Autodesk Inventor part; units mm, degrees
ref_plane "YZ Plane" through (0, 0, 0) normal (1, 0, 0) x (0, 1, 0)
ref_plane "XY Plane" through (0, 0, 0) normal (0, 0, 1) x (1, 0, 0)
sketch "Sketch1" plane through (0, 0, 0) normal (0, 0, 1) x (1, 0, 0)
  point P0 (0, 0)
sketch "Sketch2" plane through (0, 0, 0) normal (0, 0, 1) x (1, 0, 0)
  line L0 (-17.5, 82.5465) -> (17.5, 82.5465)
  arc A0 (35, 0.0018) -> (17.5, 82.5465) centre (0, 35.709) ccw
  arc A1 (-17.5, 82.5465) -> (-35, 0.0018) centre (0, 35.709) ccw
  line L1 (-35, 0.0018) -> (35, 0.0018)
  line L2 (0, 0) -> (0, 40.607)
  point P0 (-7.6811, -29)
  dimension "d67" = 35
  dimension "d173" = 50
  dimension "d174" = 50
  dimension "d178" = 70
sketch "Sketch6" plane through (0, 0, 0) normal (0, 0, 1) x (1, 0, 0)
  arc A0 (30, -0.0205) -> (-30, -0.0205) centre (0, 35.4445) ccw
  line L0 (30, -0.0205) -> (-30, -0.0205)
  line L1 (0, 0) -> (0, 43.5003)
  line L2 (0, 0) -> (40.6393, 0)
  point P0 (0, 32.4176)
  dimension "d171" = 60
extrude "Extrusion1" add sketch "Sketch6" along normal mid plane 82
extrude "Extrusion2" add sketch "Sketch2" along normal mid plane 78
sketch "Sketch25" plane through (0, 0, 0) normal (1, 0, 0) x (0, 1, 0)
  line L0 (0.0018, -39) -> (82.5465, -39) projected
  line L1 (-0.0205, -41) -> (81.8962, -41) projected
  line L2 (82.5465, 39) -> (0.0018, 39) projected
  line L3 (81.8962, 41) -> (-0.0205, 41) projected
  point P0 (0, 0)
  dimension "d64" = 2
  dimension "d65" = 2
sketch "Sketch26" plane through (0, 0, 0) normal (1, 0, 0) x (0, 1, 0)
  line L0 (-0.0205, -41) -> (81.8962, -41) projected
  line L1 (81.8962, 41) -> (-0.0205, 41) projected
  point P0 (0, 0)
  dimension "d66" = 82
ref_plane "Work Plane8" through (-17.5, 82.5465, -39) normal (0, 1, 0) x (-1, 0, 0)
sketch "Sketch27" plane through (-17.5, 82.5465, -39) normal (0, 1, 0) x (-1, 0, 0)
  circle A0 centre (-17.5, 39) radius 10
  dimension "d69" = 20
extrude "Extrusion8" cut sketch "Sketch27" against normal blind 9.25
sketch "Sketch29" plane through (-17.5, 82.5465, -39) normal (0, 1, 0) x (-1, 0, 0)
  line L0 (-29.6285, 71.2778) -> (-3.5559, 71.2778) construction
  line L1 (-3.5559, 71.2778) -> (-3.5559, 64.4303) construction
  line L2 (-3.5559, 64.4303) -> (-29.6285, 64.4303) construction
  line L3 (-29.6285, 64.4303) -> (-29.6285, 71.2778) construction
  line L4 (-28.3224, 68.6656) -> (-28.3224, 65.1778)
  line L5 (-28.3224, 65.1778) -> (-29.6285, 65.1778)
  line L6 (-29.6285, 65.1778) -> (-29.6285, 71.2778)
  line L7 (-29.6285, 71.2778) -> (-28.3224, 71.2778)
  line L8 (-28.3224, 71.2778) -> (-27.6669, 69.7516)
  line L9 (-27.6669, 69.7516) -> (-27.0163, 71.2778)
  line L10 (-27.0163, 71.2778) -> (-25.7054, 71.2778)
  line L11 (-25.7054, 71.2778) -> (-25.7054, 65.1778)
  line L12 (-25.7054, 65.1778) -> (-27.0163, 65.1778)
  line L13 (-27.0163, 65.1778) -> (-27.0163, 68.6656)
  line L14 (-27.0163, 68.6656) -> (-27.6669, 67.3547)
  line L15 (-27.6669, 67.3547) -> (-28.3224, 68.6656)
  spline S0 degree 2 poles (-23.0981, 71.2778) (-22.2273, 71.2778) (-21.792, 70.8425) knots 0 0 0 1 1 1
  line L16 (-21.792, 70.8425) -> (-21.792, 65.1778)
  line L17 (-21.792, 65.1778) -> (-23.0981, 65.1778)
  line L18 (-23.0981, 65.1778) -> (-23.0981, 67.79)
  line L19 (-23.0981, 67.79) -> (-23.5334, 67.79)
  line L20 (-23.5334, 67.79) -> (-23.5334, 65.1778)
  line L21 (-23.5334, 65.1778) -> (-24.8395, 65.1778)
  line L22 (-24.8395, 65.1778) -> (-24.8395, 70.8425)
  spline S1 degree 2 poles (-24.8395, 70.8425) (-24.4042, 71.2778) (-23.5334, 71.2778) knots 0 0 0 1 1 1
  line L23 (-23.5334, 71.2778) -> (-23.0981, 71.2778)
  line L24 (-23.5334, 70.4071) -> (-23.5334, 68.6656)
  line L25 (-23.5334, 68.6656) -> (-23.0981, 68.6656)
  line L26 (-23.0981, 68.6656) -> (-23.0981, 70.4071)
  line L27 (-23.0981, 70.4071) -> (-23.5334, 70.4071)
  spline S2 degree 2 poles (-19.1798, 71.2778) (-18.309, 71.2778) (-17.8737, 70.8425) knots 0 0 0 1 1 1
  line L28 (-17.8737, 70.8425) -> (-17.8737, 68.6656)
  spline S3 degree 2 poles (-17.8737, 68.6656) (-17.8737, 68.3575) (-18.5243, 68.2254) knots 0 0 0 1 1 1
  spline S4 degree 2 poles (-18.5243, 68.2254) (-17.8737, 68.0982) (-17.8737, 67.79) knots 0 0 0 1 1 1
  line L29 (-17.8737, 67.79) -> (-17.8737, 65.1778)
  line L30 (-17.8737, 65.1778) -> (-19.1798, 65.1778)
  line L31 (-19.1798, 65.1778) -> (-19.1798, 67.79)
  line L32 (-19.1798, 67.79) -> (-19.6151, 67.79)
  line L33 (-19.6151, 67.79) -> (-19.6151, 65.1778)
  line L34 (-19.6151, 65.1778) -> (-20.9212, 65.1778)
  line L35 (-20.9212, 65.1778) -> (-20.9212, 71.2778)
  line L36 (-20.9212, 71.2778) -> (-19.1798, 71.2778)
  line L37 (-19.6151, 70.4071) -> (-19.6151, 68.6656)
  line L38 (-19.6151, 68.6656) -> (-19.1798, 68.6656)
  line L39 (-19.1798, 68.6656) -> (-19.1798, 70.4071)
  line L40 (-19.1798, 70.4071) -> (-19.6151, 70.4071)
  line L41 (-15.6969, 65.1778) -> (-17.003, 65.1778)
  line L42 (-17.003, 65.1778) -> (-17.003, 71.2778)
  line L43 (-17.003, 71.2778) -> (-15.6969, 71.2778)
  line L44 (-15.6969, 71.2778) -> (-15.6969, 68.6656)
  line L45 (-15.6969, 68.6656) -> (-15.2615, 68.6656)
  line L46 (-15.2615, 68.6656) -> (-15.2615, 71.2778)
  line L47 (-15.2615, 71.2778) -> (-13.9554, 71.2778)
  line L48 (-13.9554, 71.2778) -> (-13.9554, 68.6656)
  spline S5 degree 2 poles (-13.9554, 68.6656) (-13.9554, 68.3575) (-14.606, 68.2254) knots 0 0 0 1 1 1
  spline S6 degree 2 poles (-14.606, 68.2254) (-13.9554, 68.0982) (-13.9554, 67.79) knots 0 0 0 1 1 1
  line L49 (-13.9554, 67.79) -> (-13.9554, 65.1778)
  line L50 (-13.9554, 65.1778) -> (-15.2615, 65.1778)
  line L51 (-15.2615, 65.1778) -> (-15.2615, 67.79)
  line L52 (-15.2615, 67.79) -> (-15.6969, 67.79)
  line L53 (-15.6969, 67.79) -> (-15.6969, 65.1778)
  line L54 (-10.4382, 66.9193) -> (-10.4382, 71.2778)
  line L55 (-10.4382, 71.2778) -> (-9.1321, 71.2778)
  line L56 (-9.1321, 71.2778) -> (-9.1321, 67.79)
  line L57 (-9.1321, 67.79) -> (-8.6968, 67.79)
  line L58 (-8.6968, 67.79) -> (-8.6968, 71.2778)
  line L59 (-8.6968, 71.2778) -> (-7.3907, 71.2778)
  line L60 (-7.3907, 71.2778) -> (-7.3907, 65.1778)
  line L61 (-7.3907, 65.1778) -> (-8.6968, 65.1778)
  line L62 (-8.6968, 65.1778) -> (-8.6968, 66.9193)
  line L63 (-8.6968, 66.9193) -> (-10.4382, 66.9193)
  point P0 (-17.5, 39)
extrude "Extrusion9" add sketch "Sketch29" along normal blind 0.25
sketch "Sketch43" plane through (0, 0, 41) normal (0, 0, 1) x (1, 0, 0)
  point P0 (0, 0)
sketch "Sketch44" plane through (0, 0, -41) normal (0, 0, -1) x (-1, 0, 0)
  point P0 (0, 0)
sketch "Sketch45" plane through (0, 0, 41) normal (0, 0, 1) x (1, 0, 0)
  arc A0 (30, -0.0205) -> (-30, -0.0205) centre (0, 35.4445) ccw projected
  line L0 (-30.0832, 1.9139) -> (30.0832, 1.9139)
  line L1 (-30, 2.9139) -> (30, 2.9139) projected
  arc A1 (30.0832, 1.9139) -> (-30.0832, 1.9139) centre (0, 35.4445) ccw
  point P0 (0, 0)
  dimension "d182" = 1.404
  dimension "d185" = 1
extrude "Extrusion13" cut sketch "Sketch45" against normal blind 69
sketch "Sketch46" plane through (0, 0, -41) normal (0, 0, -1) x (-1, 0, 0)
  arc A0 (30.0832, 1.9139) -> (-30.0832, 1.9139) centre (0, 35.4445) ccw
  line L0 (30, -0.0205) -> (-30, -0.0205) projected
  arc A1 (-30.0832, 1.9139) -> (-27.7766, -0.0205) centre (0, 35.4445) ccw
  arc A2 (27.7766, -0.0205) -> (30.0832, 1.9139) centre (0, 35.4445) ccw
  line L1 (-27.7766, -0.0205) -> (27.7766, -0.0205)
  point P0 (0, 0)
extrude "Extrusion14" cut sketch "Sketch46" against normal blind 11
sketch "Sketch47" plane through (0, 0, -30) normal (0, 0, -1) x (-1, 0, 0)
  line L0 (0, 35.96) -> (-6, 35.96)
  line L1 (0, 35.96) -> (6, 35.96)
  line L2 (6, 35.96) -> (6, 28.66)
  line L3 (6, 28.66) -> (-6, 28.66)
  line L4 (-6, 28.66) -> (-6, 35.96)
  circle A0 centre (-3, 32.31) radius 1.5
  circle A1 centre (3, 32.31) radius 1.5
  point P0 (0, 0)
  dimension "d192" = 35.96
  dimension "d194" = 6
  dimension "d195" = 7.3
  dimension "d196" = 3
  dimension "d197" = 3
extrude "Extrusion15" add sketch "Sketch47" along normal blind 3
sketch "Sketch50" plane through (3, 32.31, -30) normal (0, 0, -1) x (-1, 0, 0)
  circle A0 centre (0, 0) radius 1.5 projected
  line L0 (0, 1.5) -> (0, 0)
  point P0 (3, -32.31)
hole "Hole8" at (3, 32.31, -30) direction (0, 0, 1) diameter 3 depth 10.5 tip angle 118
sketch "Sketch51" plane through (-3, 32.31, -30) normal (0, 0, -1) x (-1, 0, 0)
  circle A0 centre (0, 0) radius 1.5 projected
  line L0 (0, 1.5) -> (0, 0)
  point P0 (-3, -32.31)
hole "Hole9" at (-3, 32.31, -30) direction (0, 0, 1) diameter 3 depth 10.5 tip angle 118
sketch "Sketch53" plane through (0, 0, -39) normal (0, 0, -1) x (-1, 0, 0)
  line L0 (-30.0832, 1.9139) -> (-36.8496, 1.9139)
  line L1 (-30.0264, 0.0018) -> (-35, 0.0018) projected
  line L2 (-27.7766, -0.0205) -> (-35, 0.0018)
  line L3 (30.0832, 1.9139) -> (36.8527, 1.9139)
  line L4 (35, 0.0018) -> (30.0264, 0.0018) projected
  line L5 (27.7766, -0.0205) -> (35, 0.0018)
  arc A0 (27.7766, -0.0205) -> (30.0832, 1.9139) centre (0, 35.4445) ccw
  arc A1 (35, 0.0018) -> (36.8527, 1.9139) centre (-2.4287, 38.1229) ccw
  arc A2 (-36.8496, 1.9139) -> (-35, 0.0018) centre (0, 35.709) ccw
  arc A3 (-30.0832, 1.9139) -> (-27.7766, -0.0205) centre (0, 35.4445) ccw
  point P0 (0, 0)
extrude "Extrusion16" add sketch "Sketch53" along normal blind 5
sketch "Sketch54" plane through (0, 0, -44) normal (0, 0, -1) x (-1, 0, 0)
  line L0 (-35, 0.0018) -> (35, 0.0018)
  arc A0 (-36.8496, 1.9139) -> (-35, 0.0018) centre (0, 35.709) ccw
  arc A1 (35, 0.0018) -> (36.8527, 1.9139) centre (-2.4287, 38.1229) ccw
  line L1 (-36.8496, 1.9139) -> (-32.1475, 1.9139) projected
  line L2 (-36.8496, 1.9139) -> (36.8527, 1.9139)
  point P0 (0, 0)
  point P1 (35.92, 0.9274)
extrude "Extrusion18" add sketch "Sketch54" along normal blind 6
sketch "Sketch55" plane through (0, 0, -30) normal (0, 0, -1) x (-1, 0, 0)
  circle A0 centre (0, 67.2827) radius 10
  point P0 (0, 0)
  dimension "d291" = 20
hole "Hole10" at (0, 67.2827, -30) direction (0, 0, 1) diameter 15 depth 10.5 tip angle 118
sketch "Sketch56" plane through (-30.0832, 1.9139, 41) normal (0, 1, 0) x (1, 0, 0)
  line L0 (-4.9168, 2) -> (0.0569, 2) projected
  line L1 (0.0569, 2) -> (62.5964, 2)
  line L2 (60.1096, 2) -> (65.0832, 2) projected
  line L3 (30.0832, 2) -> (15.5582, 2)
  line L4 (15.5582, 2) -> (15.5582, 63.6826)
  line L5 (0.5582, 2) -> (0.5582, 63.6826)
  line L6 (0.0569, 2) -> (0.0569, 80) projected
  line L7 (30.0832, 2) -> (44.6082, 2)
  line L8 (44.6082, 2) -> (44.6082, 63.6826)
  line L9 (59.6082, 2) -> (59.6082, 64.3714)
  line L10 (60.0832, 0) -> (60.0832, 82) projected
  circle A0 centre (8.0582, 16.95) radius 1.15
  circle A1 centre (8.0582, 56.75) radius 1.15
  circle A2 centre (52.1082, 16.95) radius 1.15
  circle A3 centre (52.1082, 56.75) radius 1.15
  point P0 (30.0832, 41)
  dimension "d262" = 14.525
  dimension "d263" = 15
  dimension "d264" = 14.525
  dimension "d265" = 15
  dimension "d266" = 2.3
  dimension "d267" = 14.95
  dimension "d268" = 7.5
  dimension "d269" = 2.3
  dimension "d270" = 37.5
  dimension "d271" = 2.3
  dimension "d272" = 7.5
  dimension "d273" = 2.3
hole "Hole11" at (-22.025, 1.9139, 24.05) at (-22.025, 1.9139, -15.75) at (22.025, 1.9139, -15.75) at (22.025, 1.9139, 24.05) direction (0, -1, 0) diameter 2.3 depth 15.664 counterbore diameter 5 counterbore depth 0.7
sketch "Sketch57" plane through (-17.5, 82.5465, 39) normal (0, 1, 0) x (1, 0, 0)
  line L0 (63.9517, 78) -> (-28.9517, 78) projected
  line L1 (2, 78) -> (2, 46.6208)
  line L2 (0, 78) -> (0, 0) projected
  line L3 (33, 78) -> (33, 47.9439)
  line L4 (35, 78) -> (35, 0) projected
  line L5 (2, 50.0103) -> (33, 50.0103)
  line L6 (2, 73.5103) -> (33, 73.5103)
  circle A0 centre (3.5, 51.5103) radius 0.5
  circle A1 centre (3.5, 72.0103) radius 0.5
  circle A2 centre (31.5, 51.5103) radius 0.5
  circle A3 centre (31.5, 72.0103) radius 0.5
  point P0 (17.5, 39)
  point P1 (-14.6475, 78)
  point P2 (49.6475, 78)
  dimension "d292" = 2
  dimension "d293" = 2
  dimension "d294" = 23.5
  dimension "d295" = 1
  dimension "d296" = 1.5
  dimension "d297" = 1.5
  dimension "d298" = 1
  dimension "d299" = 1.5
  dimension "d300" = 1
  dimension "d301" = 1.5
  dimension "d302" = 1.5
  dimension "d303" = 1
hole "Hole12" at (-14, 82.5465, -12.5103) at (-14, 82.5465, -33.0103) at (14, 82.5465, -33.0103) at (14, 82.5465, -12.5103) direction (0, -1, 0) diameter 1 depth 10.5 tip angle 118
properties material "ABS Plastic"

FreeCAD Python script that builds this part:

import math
import FreeCAD as App
import Part
import Sketcher

V = App.Vector
Q = App.Units.Quantity


def add_polygon(sketch, points):
    """Adds a closed chain of lines whose ends are joined by coincident constraints."""
    first, n = sketch.GeometryCount, len(points)
    for a, b in zip(points, points[1:] + points[:1]):
        sketch.addGeometry(Part.LineSegment(App.Vector(*a, 0), App.Vector(*b, 0)), False)
    for i in range(n):
        sketch.addConstraint(Sketcher.Constraint("Coincident", first + i, 2, first + (i + 1) % n, 1))

doc = App.newDocument("Part")
body = doc.addObject("PartDesign::Body", "Body")

sketch1 = doc.addObject("Sketcher::SketchObject", "Sketch")
body.addObject(sketch1)
sketch1.AttachmentSupport = (doc.XY_Plane, [""])
sketch1.MapMode = "FlatFace"
sketch1.addGeometry(Part.LineSegment(V(-30, -0.0205, 0), V(30, -0.0205, 0)), False)
sketch1.addGeometry(Part.ArcOfCircle(Part.Circle(V(0, 35.4445, 0), V(0, 0, 1), 46.451762), math.radians(-49.771971), math.radians(229.771971)), False)
sketch1.addConstraint(Sketcher.Constraint("Coincident", 0, 1, 1, 2))
sketch1.addConstraint(Sketcher.Constraint("Coincident", 1, 1, 0, 2))
sketch1.addConstraint(Sketcher.Constraint("Horizontal", 0))
sketch1.addConstraint(Sketcher.Constraint("PointOnObject", 1, 3, -2))
sketch1.addConstraint(Sketcher.Constraint("DistanceX", 0, 1, 0, 2, Q("60 mm")))
sketch1.addConstraint(Sketcher.Constraint("Radius", 1, Q("46.4518 mm")))
sketch1.addConstraint(Sketcher.Constraint("DistanceY", -1, 1, 1, 3, Q("35.4445 mm")))
pad1 = doc.addObject("PartDesign::Pad", "Pad")
body.addObject(pad1)
pad1.Profile = sketch1
pad1.Length = 82
pad1.Midplane = True

sketch2 = doc.addObject("Sketcher::SketchObject", "Sketch001")
body.addObject(sketch2)
sketch2.AttachmentSupport = (doc.XY_Plane, [""])
sketch2.MapMode = "FlatFace"
sketch2.addGeometry(Part.LineSegment(V(17.5, 82.5465, 0), V(-17.5, 82.5465, 0)), False)
sketch2.addGeometry(Part.ArcOfCircle(Part.Circle(V(0, 35.709, 0), V(0, 0, 1), 50.000041), math.radians(110.487309), math.radians(225.573042)), False)
sketch2.addGeometry(Part.LineSegment(V(-35, 0.0018, 0), V(35, 0.0018, 0)), False)
sketch2.addGeometry(Part.ArcOfCircle(Part.Circle(V(0, 35.709, 0), V(0, 0, 1), 50.000014), math.radians(-45.573042), math.radians(69.512691)), False)
sketch2.addConstraint(Sketcher.Constraint("Coincident", 0, 2, 1, 1))
sketch2.addConstraint(Sketcher.Constraint("Coincident", 1, 2, 2, 1))
sketch2.addConstraint(Sketcher.Constraint("Coincident", 2, 2, 3, 1))
sketch2.addConstraint(Sketcher.Constraint("Coincident", 3, 2, 0, 1))
sketch2.addConstraint(Sketcher.Constraint("Horizontal", 0))
sketch2.addConstraint(Sketcher.Constraint("Horizontal", 2))
sketch2.addConstraint(Sketcher.Constraint("Coincident", 3, 3, 1, 3))
sketch2.addConstraint(Sketcher.Constraint("Equal", 1, 3))
sketch2.addConstraint(Sketcher.Constraint("PointOnObject", 1, 3, -2))
sketch2.addConstraint(Sketcher.Constraint("Radius", 1, Q("50 mm")))
sketch2.addConstraint(Sketcher.Constraint("DistanceX", 0, 2, 0, 1, Q("35 mm")))
sketch2.addConstraint(Sketcher.Constraint("DistanceX", 2, 1, 2, 2, Q("70 mm")))
sketch2.addConstraint(Sketcher.Constraint("DistanceY", -1, 1, 1, 3, Q("35.709 mm")))
pad2 = doc.addObject("PartDesign::Pad", "Pad001")
body.addObject(pad2)
pad2.Profile = sketch2
pad2.Length = 78
pad2.Midplane = True

sketch3 = doc.addObject("Sketcher::SketchObject", "Sketch002")
body.addObject(sketch3)
sketch3.AttachmentSupport = (doc.XZ_Plane, [""])
sketch3.MapMode = "FlatFace"
sketch3.AttachmentOffset = App.Placement(V(0, 0, -82.5465), App.Rotation())
sketch3.addGeometry(Part.Circle(V(0, 0, 0), V(0, 0, 1), 10), False)
sketch3.addConstraint(Sketcher.Constraint("Coincident", 0, 3, -1, 1))
sketch3.addConstraint(Sketcher.Constraint("Diameter", 0, Q("20 mm")))
pocket1 = doc.addObject("PartDesign::Pocket", "Pocket")
body.addObject(pocket1)
pocket1.Profile = sketch3
pocket1.Length = 9.25
pocket1.Reversed = True

sketch4 = doc.addObject("Sketcher::SketchObject", "Sketch003")
body.addObject(sketch4)
sketch4.AttachmentSupport = (doc.XZ_Plane, [""])
sketch4.MapMode = "FlatFace"
sketch4.AttachmentOffset = App.Placement(V(0, 0, -82.5465), App.Rotation())
add_polygon(sketch4, [(10.8224, 26.1778), (10.8224, 29.6656), (10.1669, 28.3547), (9.5163, 29.6656), (9.5163, 26.1778), (8.2054, 26.1778), (8.2054, 32.2778), (9.5163, 32.2778), (10.1669, 30.7516), (10.8224, 32.2778), (12.1285, 32.2778), (12.1285, 26.1778)])
sketch4.addGeometry(Part.BSplineCurve([V(5.5981, 32.2778, 0), V(4.7273, 32.2778, 0), V(4.292, 31.8425, 0)], [3, 3], [0, 1], False, 2, [1, 1, 1], False), False)
sketch4.addGeometry(Part.LineSegment(V(5.5981, 32.2778, 0), V(6.0334, 32.2778, 0)), False)
sketch4.addGeometry(Part.BSplineCurve([V(7.3395, 31.8425, 0), V(6.9042, 32.2778, 0), V(6.0334, 32.2778, 0)], [3, 3], [0, 1], False, 2, [1, 1, 1], False), False)
sketch4.addGeometry(Part.LineSegment(V(7.3395, 31.8425, 0), V(7.3395, 26.1778, 0)), False)
sketch4.addGeometry(Part.LineSegment(V(7.3395, 26.1778, 0), V(6.0334, 26.1778, 0)), False)
sketch4.addGeometry(Part.LineSegment(V(6.0334, 26.1778, 0), V(6.0334, 28.79, 0)), False)
sketch4.addGeometry(Part.LineSegment(V(6.0334, 28.79, 0), V(5.5981, 28.79, 0)), False)
sketch4.addGeometry(Part.LineSegment(V(5.5981, 28.79, 0), V(5.5981, 26.1778, 0)), False)
sketch4.addGeometry(Part.LineSegment(V(5.5981, 26.1778, 0), V(4.292, 26.1778, 0)), False)
sketch4.addGeometry(Part.LineSegment(V(4.292, 26.1778, 0), V(4.292, 31.8425, 0)), False)
add_polygon(sketch4, [(6.0334, 29.6656), (6.0334, 31.4071), (5.5981, 31.4071), (5.5981, 29.6656)])
sketch4.addGeometry(Part.BSplineCurve([V(1.6798, 32.2778, 0), V(0.809, 32.2778, 0), V(0.3737, 31.8425, 0)], [3, 3], [0, 1], False, 2, [1, 1, 1], False), False)
sketch4.addGeometry(Part.LineSegment(V(1.6798, 32.2778, 0), V(3.4212, 32.2778, 0)), False)
sketch4.addGeometry(Part.LineSegment(V(3.4212, 32.2778, 0), V(3.4212, 26.1778, 0)), False)
sketch4.addGeometry(Part.LineSegment(V(3.4212, 26.1778, 0), V(2.1151, 26.1778, 0)), False)
sketch4.addGeometry(Part.LineSegment(V(2.1151, 26.1778, 0), V(2.1151, 28.79, 0)), False)
sketch4.addGeometry(Part.LineSegment(V(2.1151, 28.79, 0), V(1.6798, 28.79, 0)), False)
sketch4.addGeometry(Part.LineSegment(V(1.6798, 28.79, 0), V(1.6798, 26.1778, 0)), False)
sketch4.addGeometry(Part.LineSegment(V(1.6798, 26.1778, 0), V(0.3737, 26.1778, 0)), False)
sketch4.addGeometry(Part.LineSegment(V(0.3737, 26.1778, 0), V(0.3737, 28.79, 0)), False)
sketch4.addGeometry(Part.BSplineCurve([V(1.0243, 29.2254, 0), V(0.3737, 29.0982, 0), V(0.3737, 28.79, 0)], [3, 3], [0, 1], False, 2, [1, 1, 1], False), False)
sketch4.addGeometry(Part.BSplineCurve([V(0.3737, 29.6656, 0), V(0.3737, 29.3575, 0), V(1.0243, 29.2254, 0)], [3, 3], [0, 1], False, 2, [1, 1, 1], False), False)
sketch4.addGeometry(Part.LineSegment(V(0.3737, 29.6656, 0), V(0.3737, 31.8425, 0)), False)
add_polygon(sketch4, [(2.1151, 29.6656), (2.1151, 31.4071), (1.6798, 31.4071), (1.6798, 29.6656)])
sketch4.addGeometry(Part.LineSegment(V(-0.497, 26.1778, 0), V(-1.8031, 26.1778, 0)), False)
sketch4.addGeometry(Part.LineSegment(V(-1.8031, 26.1778, 0), V(-1.8031, 28.79, 0)), False)
sketch4.addGeometry(Part.LineSegment(V(-1.8031, 28.79, 0), V(-2.2385, 28.79, 0)), False)
sketch4.addGeometry(Part.LineSegment(V(-2.2385, 28.79, 0), V(-2.2385, 26.1778, 0)), False)
sketch4.addGeometry(Part.LineSegment(V(-2.2385, 26.1778, 0), V(-3.5446, 26.1778, 0)), False)
sketch4.addGeometry(Part.LineSegment(V(-3.5446, 26.1778, 0), V(-3.5446, 28.79, 0)), False)
sketch4.addGeometry(Part.BSplineCurve([V(-2.894, 29.2254, 0), V(-3.5446, 29.0982, 0), V(-3.5446, 28.79, 0)], [3, 3], [0, 1], False, 2, [1, 1, 1], False), False)
sketch4.addGeometry(Part.BSplineCurve([V(-3.5446, 29.6656, 0), V(-3.5446, 29.3575, 0), V(-2.894, 29.2254, 0)], [3, 3], [0, 1], False, 2, [1, 1, 1], False), False)
sketch4.addGeometry(Part.LineSegment(V(-3.5446, 29.6656, 0), V(-3.5446, 32.2778, 0)), False)
sketch4.addGeometry(Part.LineSegment(V(-3.5446, 32.2778, 0), V(-2.2385, 32.2778, 0)), False)
sketch4.addGeometry(Part.LineSegment(V(-2.2385, 32.2778, 0), V(-2.2385, 29.6656, 0)), False)
sketch4.addGeometry(Part.LineSegment(V(-2.2385, 29.6656, 0), V(-1.8031, 29.6656, 0)), False)
sketch4.addGeometry(Part.LineSegment(V(-1.8031, 29.6656, 0), V(-1.8031, 32.2778, 0)), False)
sketch4.addGeometry(Part.LineSegment(V(-1.8031, 32.2778, 0), V(-0.497, 32.2778, 0)), False)
sketch4.addGeometry(Part.LineSegment(V(-0.497, 32.2778, 0), V(-0.497, 26.1778, 0)), False)
add_polygon(sketch4, [(-7.0618, 32.2778), (-7.0618, 27.9193), (-8.8032, 27.9193), (-8.8032, 26.1778), (-10.1093, 26.1778), (-10.1093, 32.2778), (-8.8032, 32.2778), (-8.8032, 28.79), (-8.3679, 28.79), (-8.3679, 32.2778)])
sketch4.addConstraint(Sketcher.Constraint("Block", 12))
sketch4.addConstraint(Sketcher.Constraint("Block", 14))
sketch4.addConstraint(Sketcher.Constraint("Block", 26))
sketch4.addConstraint(Sketcher.Constraint("Block", 35))
sketch4.addConstraint(Sketcher.Constraint("Block", 36))
sketch4.addConstraint(Sketcher.Constraint("Block", 48))
sketch4.addConstraint(Sketcher.Constraint("Block", 49))
sketch4.addConstraint(Sketcher.Constraint("Coincident", 12, 1, 13, 1))
sketch4.addConstraint(Sketcher.Constraint("Coincident", 13, 2, 14, 2))
sketch4.addConstraint(Sketcher.Constraint("Coincident", 14, 1, 15, 1))
sketch4.addConstraint(Sketcher.Constraint("Coincident", 15, 2, 16, 1))
sketch4.addConstraint(Sketcher.Constraint("Coincident", 16, 2, 17, 1))
sketch4.addConstraint(Sketcher.Constraint("Coincident", 17, 2, 18, 1))
sketch4.addConstraint(Sketcher.Constraint("Coincident", 18, 2, 19, 1))
sketch4.addConstraint(Sketcher.Constraint("Coincident", 19, 2, 20, 1))
sketch4.addConstraint(Sketcher.Constraint("Coincident", 20, 2, 21, 1))
sketch4.addConstraint(Sketcher.Constraint("Coincident", 21, 2, 12, 2))
sketch4.addConstraint(Sketcher.Constraint("Coincident", 26, 1, 27, 1))
sketch4.addConstraint(Sketcher.Constraint("Coincident", 27, 2, 28, 1))
sketch4.addConstraint(Sketcher.Constraint("Coincident", 28, 2, 29, 1))
sketch4.addConstraint(Sketcher.Constraint("Coincident", 29, 2, 30, 1))
sketch4.addConstraint(Sketcher.Constraint("Coincident", 30, 2, 31, 1))
sketch4.addConstraint(Sketcher.Constraint("Coincident", 31, 2, 32, 1))
sketch4.addConstraint(Sketcher.Constraint("Coincident", 32, 2, 33, 1))
sketch4.addConstraint(Sketcher.Constraint("Coincident", 33, 2, 34, 1))
sketch4.addConstraint(Sketcher.Constraint("Coincident", 34, 2, 35, 2))
sketch4.addConstraint(Sketcher.Constraint("Coincident", 36, 1, 37, 1))
sketch4.addConstraint(Sketcher.Constraint("Coincident", 37, 2, 26, 2))
sketch4.addConstraint(Sketcher.Constraint("Coincident", 42, 2, 43, 1))
sketch4.addConstraint(Sketcher.Constraint("Coincident", 43, 2, 44, 1))
sketch4.addConstraint(Sketcher.Constraint("Coincident", 44, 2, 45, 1))
sketch4.addConstraint(Sketcher.Constraint("Coincident", 45, 2, 46, 1))
sketch4.addConstraint(Sketcher.Constraint("Coincident", 46, 2, 47, 1))
sketch4.addConstraint(Sketcher.Constraint("Coincident", 47, 2, 48, 2))
sketch4.addConstraint(Sketcher.Constraint("Coincident", 49, 1, 50, 1))
sketch4.addConstraint(Sketcher.Constraint("Coincident", 50, 2, 51, 1))
sketch4.addConstraint(Sketcher.Constraint("Coincident", 51, 2, 52, 1))
sketch4.addConstraint(Sketcher.Constraint("Coincident", 52, 2, 53, 1))
sketch4.addConstraint(Sketcher.Constraint("Coincident", 53, 2, 54, 1))
sketch4.addConstraint(Sketcher.Constraint("Coincident", 54, 2, 55, 1))
sketch4.addConstraint(Sketcher.Constraint("Coincident", 55, 2, 56, 1))
sketch4.addConstraint(Sketcher.Constraint("Coincident", 56, 2, 42, 1))
sketch4.addConstraint(Sketcher.Constraint("Vertical", 0))
sketch4.addConstraint(Sketcher.Constraint("Vertical", 3))
sketch4.addConstraint(Sketcher.Constraint("Horizontal", 4))
sketch4.addConstraint(Sketcher.Constraint("Vertical", 5))
sketch4.addConstraint(Sketcher.Constraint("Horizontal", 6))
sketch4.addConstraint(Sketcher.Constraint("Horizontal", 9))
sketch4.addConstraint(Sketcher.Constraint("Vertical", 10))
sketch4.addConstraint(Sketcher.Constraint("Horizontal", 11))
sketch4.addConstraint(Sketcher.Constraint("Vertical", 15))
sketch4.addConstraint(Sketcher.Constraint("Horizontal", 16))
sketch4.addConstraint(Sketcher.Constraint("Vertical", 17))
sketch4.addConstraint(Sketcher.Constraint("Horizontal", 18))
sketch4.addConstraint(Sketcher.Constraint("Vertical", 19))
sketch4.addConstraint(Sketcher.Constraint("Horizontal", 20))
sketch4.addConstraint(Sketcher.Constraint("Vertical", 21))
sketch4.addConstraint(Sketcher.Constraint("Vertical", 22))
sketch4.addConstraint(Sketcher.Constraint("Horizontal", 23))
sketch4.addConstraint(Sketcher.Constraint("Vertical", 24))
sketch4.addConstraint(Sketcher.Constraint("Horizontal", 25))
sketch4.addConstraint(Sketcher.Constraint("Horizontal", 27))
sketch4.addConstraint(Sketcher.Constraint("Vertical", 28))
sketch4.addConstraint(Sketcher.Constraint("Horizontal", 29))
sketch4.addConstraint(Sketcher.Constraint("Vertical", 30))
sketch4.addConstraint(Sketcher.Constraint("Horizontal", 31))
sketch4.addConstraint(Sketcher.Constraint("Vertical", 32))
sketch4.addConstraint(Sketcher.Constraint("Horizontal", 33))
sketch4.addConstraint(Sketcher.Constraint("Vertical", 34))
sketch4.addConstraint(Sketcher.Constraint("Vertical", 38))
sketch4.addConstraint(Sketcher.Constraint("Horizontal", 39))
sketch4.addConstraint(Sketcher.Constraint("Vertical", 40))
sketch4.addConstraint(Sketcher.Constraint("Horizontal", 41))
sketch4.addConstraint(Sketcher.Constraint("Horizontal", 42))
sketch4.addConstraint(Sketcher.Constraint("Vertical", 43))
sketch4.addConstraint(Sketcher.Constraint("Horizontal", 44))
sketch4.addConstraint(Sketcher.Constraint("Vertical", 45))
sketch4.addConstraint(Sketcher.Constraint("Horizontal", 46))
sketch4.addConstraint(Sketcher.Constraint("Vertical", 47))
sketch4.addConstraint(Sketcher.Constraint("Vertical", 50))
sketch4.addConstraint(Sketcher.Constraint("Horizontal", 51))
sketch4.addConstraint(Sketcher.Constraint("Vertical", 52))
sketch4.addConstraint(Sketcher.Constraint("Horizontal", 53))
sketch4.addConstraint(Sketcher.Constraint("Vertical", 54))
sketch4.addConstraint(Sketcher.Constraint("Horizontal", 55))
sketch4.addConstraint(Sketcher.Constraint("Vertical", 56))
sketch4.addConstraint(Sketcher.Constraint("Vertical", 57))
sketch4.addConstraint(Sketcher.Constraint("Horizontal", 58))
sketch4.addConstraint(Sketcher.Constraint("Vertical", 59))
sketch4.addConstraint(Sketcher.Constraint("Horizontal", 60))
sketch4.addConstraint(Sketcher.Constraint("Vertical", 61))
sketch4.addConstraint(Sketcher.Constraint("Horizontal", 62))
sketch4.addConstraint(Sketcher.Constraint("Vertical", 63))
sketch4.addConstraint(Sketcher.Constraint("Horizontal", 64))
sketch4.addConstraint(Sketcher.Constraint("Vertical", 65))
sketch4.addConstraint(Sketcher.Constraint("Horizontal", 66))
sketch4.addConstraint(Sketcher.Constraint("DistanceY", 5, 1, 5, 2, Q("6.1 mm")))
sketch4.addConstraint(Sketcher.Constraint("DistanceY", 10, 2, 10, 1, Q("6.1 mm")))
sketch4.addConstraint(Sketcher.Constraint("DistanceY", 28, 2, 28, 1, Q("6.1 mm")))
sketch4.addConstraint(Sketcher.Constraint("DistanceY", 56, 2, 56, 1, Q("6.1 mm")))
sketch4.addConstraint(Sketcher.Constraint("DistanceY", 61, 1, 61, 2, Q("6.1 mm")))
sketch4.addConstraint(Sketcher.Constraint("DistanceX", 4, 2, 4, 1, Q("1.311 mm")))
sketch4.addConstraint(Sketcher.Constraint("DistanceX", 6, 1, 6, 2, Q("1.311 mm")))
sketch4.addConstraint(Sketcher.Constraint("DistanceX", 9, 1, 9, 2, Q("1.306 mm")))
sketch4.addConstraint(Sketcher.Constraint("DistanceX", 11, 2, 11, 1, Q("1.306 mm")))
sketch4.addConstraint(Sketcher.Constraint("DistanceX", 16, 2, 16, 1, Q("1.306 mm")))
sketch4.addConstraint(Sketcher.Constraint("DistanceX", 20, 2, 20, 1, Q("1.306 mm")))
sketch4.addConstraint(Sketcher.Constraint("DistanceX", 29, 2, 29, 1, Q("1.306 mm")))
sketch4.addConstraint(Sketcher.Constraint("DistanceX", 33, 2, 33, 1, Q("1.306 mm")))
sketch4.addConstraint(Sketcher.Constraint("DistanceX", 42, 2, 42, 1, Q("1.306 mm")))
sketch4.addConstraint(Sketcher.Constraint("DistanceX", 46, 2, 46, 1, Q("1.306 mm")))
sketch4.addConstraint(Sketcher.Constraint("DistanceX", 51, 1, 51, 2, Q("1.306 mm")))
sketch4.addConstraint(Sketcher.Constraint("DistanceX", 55, 1, 55, 2, Q("1.306 mm")))
sketch4.addConstraint(Sketcher.Constraint("DistanceX", 60, 2, 60, 1, Q("1.306 mm")))
sketch4.addConstraint(Sketcher.Constraint("DistanceX", 62, 1, 62, 2, Q("1.306 mm")))
sketch4.addConstraint(Sketcher.Constraint("DistanceX", 66, 1, 66, 2, Q("1.306 mm")))
sketch4.addConstraint(Sketcher.Constraint("DistanceY", -1, 1, 17, 2, Q("28.79 mm")))
sketch4.addConstraint(Sketcher.Constraint("DistanceY", -1, 1, 30, 2, Q("28.79 mm")))
sketch4.addConstraint(Sketcher.Constraint("DistanceY", -1, 1, 43, 2, Q("28.79 mm")))
sketch4.addConstraint(Sketcher.Constraint("DistanceY", -1, 1, 63, 2, Q("28.79 mm")))
sketch4.addConstraint(Sketcher.Constraint("Distance", 7, Q("1.659 mm")))
sketch4.addConstraint(Sketcher.Constraint("Distance", 8, Q("1.661 mm")))
sketch4.addConstraint(Sketcher.Constraint("DistanceX", 23, 2, 23, 1, Q("0.4353 mm")))
sketch4.addConstraint(Sketcher.Constraint("DistanceX", 27, 1, 27, 2, Q("1.7414 mm")))
sketch4.addConstraint(Sketcher.Constraint("DistanceX", 39, 2, 39, 1, Q("0.4353 mm")))
sketch4.addConstraint(Sketcher.Constraint("DistanceX", 44, 2, 44, 1, Q("0.4354 mm")))
sketch4.addConstraint(Sketcher.Constraint("DistanceX", 58, 2, 58, 1, Q("1.7414 mm")))
sketch4.addConstraint(Sketcher.Constraint("DistanceY", 0, 1, 0, 2, Q("3.4878 mm")))
sketch4.addConstraint(Sketcher.Constraint("DistanceY", 3, 2, 3, 1, Q("3.4878 mm")))
sketch4.addConstraint(Sketcher.Constraint("DistanceY", 15, 2, 15, 1, Q("5.6647 mm")))
sketch4.addConstraint(Sketcher.Constraint("DistanceY", 19, 2, 19, 1, Q("2.6122 mm")))
sketch4.addConstraint(Sketcher.Constraint("DistanceY", 22, 1, 22, 2, Q("1.7415 mm")))
sketch4.addConstraint(Sketcher.Constraint("DistanceY", 32, 2, 32, 1, Q("2.6122 mm")))
sketch4.addConstraint(Sketcher.Constraint("DistanceY", 38, 1, 38, 2, Q("1.7415 mm")))
sketch4.addConstraint(Sketcher.Constraint("DistanceY", 43, 1, 43, 2, Q("2.6122 mm")))
sketch4.addConstraint(Sketcher.Constraint("DistanceY", 45, 2, 45, 1, Q("2.6122 mm")))
sketch4.addConstraint(Sketcher.Constraint("DistanceY", 50, 1, 50, 2, Q("2.6122 mm")))
sketch4.addConstraint(Sketcher.Constraint("DistanceY", 52, 2, 52, 1, Q("2.6122 mm")))
sketch4.addConstraint(Sketcher.Constraint("DistanceY", 57, 2, 57, 1, Q("4.3585 mm")))
sketch4.addConstraint(Sketcher.Constraint("DistanceY", 59, 2, 59, 1, Q("1.7415 mm")))
sketch4.addConstraint(Sketcher.Constraint("DistanceY", 63, 2, 63, 1, Q("3.4878 mm")))
sketch4.addConstraint(Sketcher.Constraint("DistanceX", -1, 1, 1, 2, Q("10.167 mm")))
sketch4.addConstraint(Sketcher.Constraint("DistanceX", -1, 1, 7, 2, Q("10.167 mm")))
sketch4.addConstraint(Sketcher.Constraint("DistanceY", -1, 1, 22, 2, Q("31.407 mm")))
sketch4.addConstraint(Sketcher.Constraint("DistanceX", -1, 1, 23, 2, Q("5.598 mm")))
sketch4.addConstraint(Sketcher.Constraint("DistanceX", -1, 1, 38, 2, Q("2.115 mm")))
sketch4.addConstraint(Sketcher.Constraint("DistanceY", -1, 1, 38, 2, Q("31.407 mm")))
sketch4.addConstraint(Sketcher.Constraint("DistanceX", 64, 2, -1, 1, Q("8.368 mm")))
sketch4.addConstraint(Sketcher.Constraint("DistanceY", 1, 2, 0, 2, Q("1.311 mm")))
sketch4.addConstraint(Sketcher.Constraint("DistanceX", 2, 2, 0, 2, Q("1.306 mm")))
sketch4.addConstraint(Sketcher.Constraint("DistanceY", 1, 2, 2, 2, Q("1.311 mm")))
sketch4.addConstraint(Sketcher.Constraint("DistanceY", 15, 2, 1, 2, Q("2.177 mm")))
pad3 = doc.addObject("PartDesign::Pad", "Pad002")
body.addObject(pad3)
pad3.Profile = sketch4
pad3.Length = 0.25
pad3.Reversed = True

sketch5 = doc.addObject("Sketcher::SketchObject", "Sketch004")
body.addObject(sketch5)
sketch5.AttachmentSupport = (doc.XY_Plane, [""])
sketch5.MapMode = "FlatFace"
sketch5.AttachmentOffset = App.Placement(V(0, 0, 41), App.Rotation())
sketch5.addGeometry(Part.ArcOfCircle(Part.Circle(V(0, 35.4445, 0), V(0, 0, 1), 45.047753), math.radians(-48.101975), math.radians(228.101975)), False)
sketch5.addGeometry(Part.LineSegment(V(-30.0832, 1.9139, 0), V(30.0832, 1.9139, 0)), False)
sketch5.addConstraint(Sketcher.Constraint("Coincident", 0, 1, 1, 2))
sketch5.addConstraint(Sketcher.Constraint("Coincident", 1, 1, 0, 2))
sketch5.addConstraint(Sketcher.Constraint("Horizontal", 1))
sketch5.addConstraint(Sketcher.Constraint("PointOnObject", 0, 3, -2))
sketch5.addConstraint(Sketcher.Constraint("Radius", 0, Q("45.0478 mm")))
sketch5.addConstraint(Sketcher.Constraint("DistanceX", 1, 1, 1, 2, Q("60.1664 mm")))
sketch5.addConstraint(Sketcher.Constraint("DistanceY", -1, 1, 0, 1, Q("1.914 mm")))
pocket2 = doc.addObject("PartDesign::Pocket", "Pocket001")
body.addObject(pocket2)
pocket2.Profile = sketch5
pocket2.Length = 69

sketch6 = doc.addObject("Sketcher::SketchObject", "Sketch005")
body.addObject(sketch6)
sketch6.AttachmentSupport = (doc.XY_Plane, [""])
sketch6.MapMode = "FlatFace"
sketch6.AttachmentOffset = App.Placement(V(0, 0, -41), App.Rotation())
sketch6.addGeometry(Part.ArcOfCircle(Part.Circle(V(-0.03547, 35.400739, 0), V(0, 0, 1), 44.991493), math.radians(-131.901619), math.radians(-128.067261)), False)
sketch6.addGeometry(Part.ArcOfCircle(Part.Circle(V(0, 35.4445, 0), V(0, 0, 1), 45.047753), math.radians(-48.101975), math.radians(228.101975)), False)
sketch6.addGeometry(Part.ArcOfCircle(Part.Circle(V(-0.037005, 35.487158, 0), V(0, 0, 1), 45.104217), math.radians(-51.927946), math.radians(-48.103174)), False)
sketch6.addGeometry(Part.LineSegment(V(27.7766, -0.0205, 0), V(-27.7766, -0.0205, 0)), False)
sketch6.addConstraint(Sketcher.Constraint("Coincident", 0, 1, 1, 2))
sketch6.addConstraint(Sketcher.Constraint("Coincident", 1, 1, 2, 2))
sketch6.addConstraint(Sketcher.Constraint("Coincident", 2, 1, 3, 1))
sketch6.addConstraint(Sketcher.Constraint("Coincident", 3, 2, 0, 2))
sketch6.addConstraint(Sketcher.Constraint("Horizontal", 3))
sketch6.addConstraint(Sketcher.Constraint("PointOnObject", 1, 3, -2))
sketch6.addConstraint(Sketcher.Constraint("Radius", 0, Q("44.9915 mm")))
sketch6.addConstraint(Sketcher.Constraint("Radius", 1, Q("45.0478 mm")))
sketch6.addConstraint(Sketcher.Constraint("Radius", 2, Q("45.1042 mm")))
sketch6.addConstraint(Sketcher.Constraint("DistanceX", 3, 2, 3, 1, Q("55.5532 mm")))
sketch6.addConstraint(Sketcher.Constraint("DistanceX", 2, 3, -1, 1, Q("0.037 mm")))
sketch6.addConstraint(Sketcher.Constraint("DistanceY", -1, 1, 0, 1, Q("1.914 mm")))
sketch6.addConstraint(Sketcher.Constraint("DistanceY", -1, 1, 1, 1, Q("1.914 mm")))
sketch6.addConstraint(Sketcher.Constraint("DistanceX", 0, 3, 2, 1, Q("27.812 mm")))
sketch6.addConstraint(Sketcher.Constraint("DistanceY", -1, 1, 0, 3, Q("35.4007 mm")))
pocket3 = doc.addObject("PartDesign::Pocket", "Pocket002")
body.addObject(pocket3)
pocket3.Profile = sketch6
pocket3.Length = 11
pocket3.Reversed = True

sketch7 = doc.addObject("Sketcher::SketchObject", "Sketch006")
body.addObject(sketch7)
sketch7.AttachmentSupport = (doc.XY_Plane, [""])
sketch7.MapMode = "FlatFace"
sketch7.AttachmentOffset = App.Placement(V(0, 0, -30), App.Rotation())
add_polygon(sketch7, [(-6, 35.96), (6, 35.96), (6, 28.66), (-6, 28.66)])
sketch7.addGeometry(Part.Circle(V(3, 32.31, 0), V(0, 0, 1), 1.5), False)
sketch7.addGeometry(Part.Circle(V(-3, 32.31, 0), V(0, 0, 1), 1.5), False)
sketch7.addConstraint(Sketcher.Constraint("Horizontal", 0))
sketch7.addConstraint(Sketcher.Constraint("Vertical", 1))
sketch7.addConstraint(Sketcher.Constraint("Horizontal", 2))
sketch7.addConstraint(Sketcher.Constraint("Vertical", 3))
sketch7.addConstraint(Sketcher.Constraint("Equal", 4, 5))
sketch7.addConstraint(Sketcher.Constraint("Symmetric", 4, 3, 5, 3, -2))
sketch7.addConstraint(Sketcher.Constraint("Diameter", 4, Q("3 mm")))
sketch7.addConstraint(Sketcher.Constraint("DistanceY", 1, 2, 1, 1, Q("7.3 mm")))
sketch7.addConstraint(Sketcher.Constraint("DistanceX", -1, 1, 4, 3, Q("3 mm")))
sketch7.addConstraint(Sketcher.Constraint("DistanceX", -1, 1, 0, 2, Q("6 mm")))
sketch7.addConstraint(Sketcher.Constraint("DistanceX", 2, 2, -1, 1, Q("6 mm")))
sketch7.addConstraint(Sketcher.Constraint("DistanceY", -1, 1, 0, 2, Q("35.96 mm")))
sketch7.addConstraint(Sketcher.Constraint("DistanceY", -1, 1, 4, 3, Q("32.31 mm")))
pad4 = doc.addObject("PartDesign::Pad", "Pad003")
body.addObject(pad4)
pad4.Profile = sketch7
pad4.Length = 3
pad4.Reversed = True

sketch8 = doc.addObject("Sketcher::SketchObject", "Sketch007")
body.addObject(sketch8)
sketch8.AttachmentSupport = (doc.XY_Plane, [""])
sketch8.MapMode = "FlatFace"
sketch8.AttachmentOffset = App.Placement(V(0, 0, -30), App.Rotation())
sketch8.addGeometry(Part.Circle(V(3, 32.31, 0), V(0, 0, 1), 1.5), False)
sketch8.addConstraint(Sketcher.Constraint("Diameter", 0, Q("3 mm")))
sketch8.addConstraint(Sketcher.Constraint("DistanceX", -1, 1, 0, 3, Q("3 mm")))
sketch8.addConstraint(Sketcher.Constraint("DistanceY", -1, 1, 0, 3, Q("32.31 mm")))
doc.recompute()
hole = doc.addObject("PartDesign::Hole", "Hole")
body.addObject(hole)
hole.Profile = sketch8
hole.ThreadType = "None"
hole.Diameter = 3
hole.DepthType = "Dimension"
hole.Depth = 10.5
hole.DrillPoint = "Angled"
hole.DrillPointAngle = 118
hole.Reversed = True

sketch9 = doc.addObject("Sketcher::SketchObject", "Sketch008")
body.addObject(sketch9)
sketch9.AttachmentSupport = (doc.XY_Plane, [""])
sketch9.MapMode = "FlatFace"
sketch9.AttachmentOffset = App.Placement(V(0, 0, -30), App.Rotation())
sketch9.addGeometry(Part.Circle(V(-3, 32.31, 0), V(0, 0, 1), 1.5), False)
sketch9.addConstraint(Sketcher.Constraint("Diameter", 0, Q("3 mm")))
sketch9.addConstraint(Sketcher.Constraint("DistanceX", 0, 3, -1, 1, Q("3 mm")))
sketch9.addConstraint(Sketcher.Constraint("DistanceY", -1, 1, 0, 3, Q("32.31 mm")))
doc.recompute()
hole2 = doc.addObject("PartDesign::Hole", "Hole001")
body.addObject(hole2)
hole2.Profile = sketch9
hole2.ThreadType = "None"
hole2.Diameter = 3
hole2.DepthType = "Dimension"
hole2.Depth = 10.5
hole2.DrillPoint = "Angled"
hole2.DrillPointAngle = 118
hole2.Reversed = True

sketch10 = doc.addObject("Sketcher::SketchObject", "Sketch009")
body.addObject(sketch10)
sketch10.AttachmentSupport = (doc.XY_Plane, [""])
sketch10.MapMode = "FlatFace"
sketch10.AttachmentOffset = App.Placement(V(0, 0, -39), App.Rotation())
sketch10.addGeometry(Part.ArcOfCircle(Part.Circle(V(-0.037005, 35.487158, 0), V(0, 0, 1), 45.104217), math.radians(-51.927946), math.radians(-48.103174)), False)
sketch10.addGeometry(Part.LineSegment(V(30.0832, 1.9139, 0), V(36.8496, 1.9139, 0)), False)
sketch10.addGeometry(Part.ArcOfCircle(Part.Circle(V(-0.023955, 35.731564, 0), V(0, 0, 1), 50.032924), math.radians(-45.571539), math.radians(-42.524717)), False)
sketch10.addGeometry(Part.LineSegment(V(35, 0.0018, 0), V(27.7766, -0.0205, 0)), False)
sketch10.addGeometry(Part.LineSegment(V(-36.8527, 1.9139, 0), V(-30.0832, 1.9139, 0)), False)
sketch10.addGeometry(Part.ArcOfCircle(Part.Circle(V(-0.03547, 35.400739, 0), V(0, 0, 1), 44.991493), math.radians(-131.901619), math.radians(-128.067261)), False)
sketch10.addGeometry(Part.LineSegment(V(-27.7766, -0.0205, 0), V(-35, 0.0018, 0)), False)
sketch10.addGeometry(Part.ArcOfCircle(Part.Circle(V(2.366977, 38.061582, 0), V(0, 0, 1), 53.337023), math.radians(-137.3341), math.radians(-134.473745)), False)
sketch10.addConstraint(Sketcher.Constraint("Coincident", 0, 2, 1, 1))
sketch10.addConstraint(Sketcher.Constraint("Coincident", 1, 2, 2, 2))
sketch10.addConstraint(Sketcher.Constraint("Coincident", 2, 1, 3, 1))
sketch10.addConstraint(Sketcher.Constraint("Coincident", 3, 2, 0, 1))
sketch10.addConstraint(Sketcher.Constraint("Coincident", 4, 2, 5, 1))
sketch10.addConstraint(Sketcher.Constraint("Coincident", 5, 2, 6, 1))
sketch10.addConstraint(Sketcher.Constraint("Coincident", 6, 2, 7, 2))
sketch10.addConstraint(Sketcher.Constraint("Coincident", 7, 1, 4, 1))
sketch10.addConstraint(Sketcher.Constraint("Horizontal", 1))
sketch10.addConstraint(Sketcher.Constraint("Horizontal", 4))
sketch10.addConstraint(Sketcher.Constraint("Symmetric", 0, 2, 4, 2, -2))
sketch10.addConstraint(Sketcher.Constraint("Symmetric", 3, 2, 5, 2, -2))
sketch10.addConstraint(Sketcher.Constraint("Symmetric", 2, 1, 6, 2, -2))
sketch10.addConstraint(Sketcher.Constraint("DistanceX", -1, 1, 2, 1, Q("35 mm")))
sketch10.addConstraint(Sketcher.Constraint("Radius", 2, Q("50.033 mm")))
sketch10.addConstraint(Sketcher.Constraint("Radius", 7, Q("53.337 mm")))
sketch10.addConstraint(Sketcher.Constraint("Radius", 0, Q("45.1042 mm")))
sketch10.addConstraint(Sketcher.Constraint("Radius", 5, Q("44.9915 mm")))
sketch10.addConstraint(Sketcher.Constraint("DistanceY", 2, 3, 7, 3, Q("2.33 mm")))
sketch10.addConstraint(Sketcher.Constraint("DistanceX", 1, 1, 1, 2, Q("6.7664 mm")))
sketch10.addConstraint(Sketcher.Constraint("DistanceX", 4, 1, 4, 2, Q("6.7695 mm")))
sketch10.addConstraint(Sketcher.Constraint("DistanceX", 0, 3, -1, 1, Q("0.037 mm")))
sketch10.addConstraint(Sketcher.Constraint("DistanceX", 2, 3, -1, 1, Q("0.024 mm")))
sketch10.addConstraint(Sketcher.Constraint("DistanceY", -1, 1, 0, 2, Q("1.914 mm")))
sketch10.addConstraint(Sketcher.Constraint("DistanceX", 3, 2, 1, 2, Q("9.073 mm")))
pad5 = doc.addObject("PartDesign::Pad", "Pad004")
body.addObject(pad5)
pad5.Profile = sketch10
pad5.Length = 5
pad5.Reversed = True

sketch11 = doc.addObject("Sketcher::SketchObject", "Sketch010")
body.addObject(sketch11)
sketch11.AttachmentSupport = (doc.XY_Plane, [""])
sketch11.MapMode = "FlatFace"
sketch11.AttachmentOffset = App.Placement(V(0, 0, -44), App.Rotation())
sketch11.addGeometry(Part.ArcOfCircle(Part.Circle(V(-0.023955, 35.731564, 0), V(0, 0, 1), 50.032924), math.radians(-45.571539), math.radians(-42.524717)), False)
sketch11.addGeometry(Part.LineSegment(V(35, 0.0018, 0), V(-35, 0.0018, 0)), False)
sketch11.addGeometry(Part.ArcOfCircle(Part.Circle(V(2.366977, 38.061582, 0), V(0, 0, 1), 53.337023), math.radians(-137.3341), math.radians(-134.473745)), False)
sketch11.addGeometry(Part.LineSegment(V(-36.8527, 1.9139, 0), V(36.8496, 1.9139, 0)), False)
sketch11.addConstraint(Sketcher.Constraint("Coincident", 0, 1, 1, 1))
sketch11.addConstraint(Sketcher.Constraint("Coincident", 1, 2, 2, 2))
sketch11.addConstraint(Sketcher.Constraint("Coincident", 2, 1, 3, 1))
sketch11.addConstraint(Sketcher.Constraint("Coincident", 3, 2, 0, 2))
sketch11.addConstraint(Sketcher.Constraint("Horizontal", 1))
sketch11.addConstraint(Sketcher.Constraint("Horizontal", 3))
sketch11.addConstraint(Sketcher.Constraint("DistanceX", 1, 2, 1, 1, Q("70 mm")))
sketch11.addConstraint(Sketcher.Constraint("DistanceX", -1, 1, 0, 1, Q("35 mm")))
sketch11.addConstraint(Sketcher.Constraint("Radius", 0, Q("50.033 mm")))
sketch11.addConstraint(Sketcher.Constraint("Radius", 2, Q("53.337 mm")))
sketch11.addConstraint(Sketcher.Constraint("DistanceY", 0, 3, 2, 3, Q("2.33 mm")))
sketch11.addConstraint(Sketcher.Constraint("DistanceX", 3, 1, 3, 2, Q("73.7023 mm")))
sketch11.addConstraint(Sketcher.Constraint("DistanceX", 0, 3, -1, 1, Q("0.024 mm")))
sketch11.addConstraint(Sketcher.Constraint("DistanceY", -1, 1, 2, 1, Q("1.914 mm")))
pad6 = doc.addObject("PartDesign::Pad", "Pad005")
body.addObject(pad6)
pad6.Profile = sketch11
pad6.Length = 6
pad6.Reversed = True

sketch12 = doc.addObject("Sketcher::SketchObject", "Sketch011")
body.addObject(sketch12)
sketch12.AttachmentSupport = (doc.XY_Plane, [""])
sketch12.MapMode = "FlatFace"
sketch12.AttachmentOffset = App.Placement(V(0, 0, -30), App.Rotation())
sketch12.addGeometry(Part.Circle(V(0, 67.2827, 0), V(0, 0, 1), 7.5), False)
sketch12.addConstraint(Sketcher.Constraint("PointOnObject", 0, 3, -2))
sketch12.addConstraint(Sketcher.Constraint("Diameter", 0, Q("15 mm")))
sketch12.addConstraint(Sketcher.Constraint("DistanceY", -1, 1, 0, 3, Q("67.2827 mm")))
doc.recompute()
hole3 = doc.addObject("PartDesign::Hole", "Hole002")
body.addObject(hole3)
hole3.Profile = sketch12
hole3.ThreadType = "None"
hole3.Diameter = 15
hole3.DepthType = "Dimension"
hole3.Depth = 10.5
hole3.DrillPoint = "Angled"
hole3.DrillPointAngle = 118
hole3.Reversed = True

sketch13 = doc.addObject("Sketcher::SketchObject", "Sketch012")
body.addObject(sketch13)
sketch13.AttachmentSupport = (doc.XZ_Plane, [""])
sketch13.MapMode = "FlatFace"
sketch13.AttachmentOffset = App.Placement(V(0, 0, -1.9139), App.Rotation())
sketch13.addGeometry(Part.Circle(V(-22.025, 24.05, 0), V(0, 0, 1), 1.15), False)
sketch13.addGeometry(Part.Circle(V(-22.025, -15.75, 0), V(0, 0, 1), 1.15), False)
sketch13.addGeometry(Part.Circle(V(22.025, -15.75, 0), V(0, 0, 1), 1.15), False)
sketch13.addGeometry(Part.Circle(V(22.025, 24.05, 0), V(0, 0, 1), 1.15), False)
sketch13.addConstraint(Sketcher.Constraint("Equal", 0, 1))
sketch13.addConstraint(Sketcher.Constraint("Equal", 1, 2))
sketch13.addConstraint(Sketcher.Constraint("Equal", 2, 3))
sketch13.addConstraint(Sketcher.Constraint("Symmetric", 1, 3, 2, 3, -2))
sketch13.addConstraint(Sketcher.Constraint("Symmetric", 0, 3, 3, 3, -2))
sketch13.addConstraint(Sketcher.Constraint("Vertical", 0, 3, 1, 3))
sketch13.addConstraint(Sketcher.Constraint("Diameter", 0, Q("2.3 mm")))
sketch13.addConstraint(Sketcher.Constraint("DistanceY", 1, 3, 0, 3, Q("39.8 mm")))
sketch13.addConstraint(Sketcher.Constraint("DistanceY", -1, 1, 0, 3, Q("24.05 mm")))
sketch13.addConstraint(Sketcher.Constraint("DistanceX", 1, 3, 2, 3, Q("44.05 mm")))
doc.recompute()
hole4 = doc.addObject("PartDesign::Hole", "Hole003")
body.addObject(hole4)
hole4.Profile = sketch13
hole4.ThreadType = "None"
hole4.Diameter = 2.3
hole4.DepthType = "Dimension"
hole4.Depth = 15.664
hole4.DrillPoint = "Flat"
hole4.HoleCutType = "Counterbore"
hole4.HoleCutDiameter = 5
hole4.HoleCutDepth = 0.7
hole4.Reversed = True

sketch14 = doc.addObject("Sketcher::SketchObject", "Sketch013")
body.addObject(sketch14)
sketch14.AttachmentSupport = (doc.XZ_Plane, [""])
sketch14.MapMode = "FlatFace"
sketch14.AttachmentOffset = App.Placement(V(0, 0, -82.5465), App.Rotation())
sketch14.addGeometry(Part.Circle(V(-14, -12.5103, 0), V(0, 0, 1), 0.5), False)
sketch14.addGeometry(Part.Circle(V(-14, -33.0103, 0), V(0, 0, 1), 0.5), False)
sketch14.addGeometry(Part.Circle(V(14, -33.0103, 0), V(0, 0, 1), 0.5), False)
sketch14.addGeometry(Part.Circle(V(14, -12.5103, 0), V(0, 0, 1), 0.5), False)
sketch14.addConstraint(Sketcher.Constraint("Equal", 0, 1))
sketch14.addConstraint(Sketcher.Constraint("Equal", 1, 2))
sketch14.addConstraint(Sketcher.Constraint("Equal", 2, 3))
sketch14.addConstraint(Sketcher.Constraint("Symmetric", 1, 3, 2, 3, -2))
sketch14.addConstraint(Sketcher.Constraint("Symmetric", 0, 3, 3, 3, -2))
sketch14.addConstraint(Sketcher.Constraint("Vertical", 0, 3, 1, 3))
sketch14.addConstraint(Sketcher.Constraint("Diameter", 0, Q("1 mm")))
sketch14.addConstraint(Sketcher.Constraint("DistanceX", 0, 3, -1, 1, Q("14 mm")))
sketch14.addConstraint(Sketcher.Constraint("DistanceY", 1, 3, 0, 3, Q("20.5 mm")))
sketch14.addConstraint(Sketcher.Constraint("DistanceY", 0, 3, -1, 1, Q("12.5103 mm")))
doc.recompute()
hole5 = doc.addObject("PartDesign::Hole", "Hole004")
body.addObject(hole5)
hole5.Profile = sketch14
hole5.ThreadType = "None"
hole5.Diameter = 1
hole5.DepthType = "Dimension"
hole5.Depth = 10.5
hole5.DrillPoint = "Angled"
hole5.DrillPointAngle = 118
hole5.Reversed = True

doc.recompute()
